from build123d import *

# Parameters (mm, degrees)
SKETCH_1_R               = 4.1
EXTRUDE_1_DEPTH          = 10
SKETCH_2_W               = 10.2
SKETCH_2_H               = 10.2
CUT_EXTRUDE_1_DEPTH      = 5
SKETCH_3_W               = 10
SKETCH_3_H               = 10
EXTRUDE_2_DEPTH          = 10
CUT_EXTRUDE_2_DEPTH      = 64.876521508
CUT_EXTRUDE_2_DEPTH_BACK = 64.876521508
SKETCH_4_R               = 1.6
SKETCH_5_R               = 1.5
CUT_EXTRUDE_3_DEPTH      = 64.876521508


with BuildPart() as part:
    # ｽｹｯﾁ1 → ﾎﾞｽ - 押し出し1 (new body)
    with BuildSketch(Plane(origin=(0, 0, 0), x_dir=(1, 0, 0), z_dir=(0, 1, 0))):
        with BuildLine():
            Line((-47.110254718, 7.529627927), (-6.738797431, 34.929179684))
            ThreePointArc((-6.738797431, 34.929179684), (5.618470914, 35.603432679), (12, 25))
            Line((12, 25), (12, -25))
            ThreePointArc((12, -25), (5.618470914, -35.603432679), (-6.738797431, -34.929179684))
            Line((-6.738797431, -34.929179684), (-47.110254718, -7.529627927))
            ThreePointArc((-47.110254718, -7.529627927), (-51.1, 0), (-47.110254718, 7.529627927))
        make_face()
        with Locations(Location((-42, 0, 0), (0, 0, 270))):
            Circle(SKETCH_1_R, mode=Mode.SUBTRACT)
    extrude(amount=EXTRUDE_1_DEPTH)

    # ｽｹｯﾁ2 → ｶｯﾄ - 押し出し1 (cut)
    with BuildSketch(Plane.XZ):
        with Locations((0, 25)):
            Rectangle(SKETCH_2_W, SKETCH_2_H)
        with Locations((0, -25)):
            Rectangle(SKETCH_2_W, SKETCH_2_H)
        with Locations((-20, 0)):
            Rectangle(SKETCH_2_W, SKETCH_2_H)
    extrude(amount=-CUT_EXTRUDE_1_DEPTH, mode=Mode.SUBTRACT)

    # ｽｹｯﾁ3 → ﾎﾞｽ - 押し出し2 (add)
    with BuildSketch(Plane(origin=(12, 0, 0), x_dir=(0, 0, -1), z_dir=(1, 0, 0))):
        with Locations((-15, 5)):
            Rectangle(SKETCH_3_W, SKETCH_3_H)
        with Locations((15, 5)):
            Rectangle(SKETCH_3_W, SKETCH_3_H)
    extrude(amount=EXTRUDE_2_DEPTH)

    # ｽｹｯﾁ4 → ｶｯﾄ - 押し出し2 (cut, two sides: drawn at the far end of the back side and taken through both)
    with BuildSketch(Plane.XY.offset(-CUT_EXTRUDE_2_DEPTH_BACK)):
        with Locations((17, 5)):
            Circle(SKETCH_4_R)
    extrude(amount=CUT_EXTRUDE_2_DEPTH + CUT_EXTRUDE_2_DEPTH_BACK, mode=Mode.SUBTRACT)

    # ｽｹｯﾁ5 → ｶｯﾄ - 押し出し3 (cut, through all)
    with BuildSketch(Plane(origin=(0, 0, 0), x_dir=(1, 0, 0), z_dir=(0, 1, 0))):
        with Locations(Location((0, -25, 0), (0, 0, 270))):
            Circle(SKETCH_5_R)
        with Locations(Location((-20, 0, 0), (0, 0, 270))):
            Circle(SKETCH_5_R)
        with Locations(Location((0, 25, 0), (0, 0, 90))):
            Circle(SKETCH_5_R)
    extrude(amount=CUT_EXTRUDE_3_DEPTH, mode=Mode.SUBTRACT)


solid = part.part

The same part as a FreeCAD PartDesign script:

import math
import FreeCAD as App
import Part
import Sketcher
Q = App.Units.Quantity

doc = App.newDocument("Part")
params = doc.addObject("Spreadsheet::Sheet", "Params")
for row, (alias, value) in enumerate([
    ("sketch1_radius", "12 mm"),
    ("sketch1_diameter", "8.2 mm"),
    ("sketch1_radius2", "9.1 mm"),
    ("sketch1_height", "50 mm"),
    ("pad1_length", "10 mm"),
    ("sketch2_width", "10.2 mm"),
    ("pocket1_length", "5 mm"),
    ("sketch3_width", "10 mm"),
    ("pad2_length", "10 mm"),
    ("sketch4_diameter", "3.2 mm"),
    ("sketch5_diameter", "3 mm"),
], start=1):
    params.set(f"A{row}", alias)
    params.set(f"B{row}", "=" + value)
    params.setAlias(f"B{row}", alias)

body = doc.addObject("PartDesign::Body", "Body")

# Sketch on XZ plane
sketch1 = body.newObject("Sketcher::SketchObject", "Sketch")
sketch1.AttachmentSupport = (doc.getObject("XZ_Plane"), [""])
sketch1.MapMode = "FlatFace"
sketch1.addGeometry([
    Part.LineSegment(App.Vector(-6.738797, -34.92918, 0), App.Vector(-47.110255, -7.529628, 0)),  # 0
    Part.ArcOfCircle(Part.Circle(App.Vector(-42, 0, 0), App.Vector(0, 0, 1), 9.1), math.radians(124.164198), math.radians(235.835802)),  # 1
    Part.LineSegment(App.Vector(-47.110255, 7.529628, 0), App.Vector(-6.738797, 34.92918, 0)),  # 2
    Part.ArcOfCircle(Part.Circle(App.Vector(0, 25, 0), App.Vector(0, 0, 1), 12), math.radians(0), math.radians(124.164198)),  # 3
    Part.LineSegment(App.Vector(12, 25, 0), App.Vector(12, -25, 0)),  # 4
    Part.ArcOfCircle(Part.Circle(App.Vector(0, -25, 0), App.Vector(0, 0, 1), 12), math.radians(-124.164198), math.radians(0)),  # 5
    Part.Circle(App.Vector(-42, 0, 0), App.Vector(0, 0, 1), 4.1),  # 6
], False)
sketch1.addConstraint([
    Sketcher.Constraint("Tangent", 0, 2, 1, 2),
    Sketcher.Constraint("Tangent", 1, 1, 2, 1),
    Sketcher.Constraint("Tangent", 2, 2, 3, 2),
    Sketcher.Constraint("Tangent", 3, 1, 4, 1),
    Sketcher.Constraint("Tangent", 4, 2, 5, 2),
    Sketcher.Constraint("Tangent", 5, 1, 0, 1),
    Sketcher.Constraint("Vertical", 4),
    Sketcher.Constraint("Coincident", 6, 3, 1, 3),
    Sketcher.Constraint("Equal", 3, 5),
    Sketcher.Constraint("Symmetric", 3, 3, 5, 3, -1, 1),
    Sketcher.Constraint("PointOnObject", 1, 3, -1),
    Sketcher.Constraint("Radius", 3, Q("12 mm")),
    Sketcher.Constraint("Diameter", 6, Q("8.2 mm")),
    Sketcher.Constraint("Radius", 1, Q("9.1 mm")),
    Sketcher.Constraint("DistanceY", 4, 2, 4, 1, Q("50 mm")),
    Sketcher.Constraint("DistanceX", 1, 3, -1, 1, Q("42 mm")),
])
sketch1.setExpression("Constraints[11]", "Params.sketch1_radius")
sketch1.setExpression("Constraints[12]", "Params.sketch1_diameter")
sketch1.setExpression("Constraints[13]", "Params.sketch1_radius2")
sketch1.setExpression("Constraints[14]", "Params.sketch1_height")
pad1 = body.newObject("PartDesign::Pad", "Pad")
pad1.Profile = sketch1
pad1.setExpression("Length", "Params.pad1_length")
pad1.Reversed = True

# Sketch on XZ plane
sketch2 = body.newObject("Sketcher::SketchObject", "Sketch001")
sketch2.AttachmentSupport = (doc.getObject("XZ_Plane"), [""])
sketch2.MapMode = "FlatFace"
sketch2.addGeometry([
    Part.LineSegment(App.Vector(-5.1, 30.1, 0), App.Vector(-5.1, 19.9, 0)),  # 0
    Part.LineSegment(App.Vector(-5.1, 19.9, 0), App.Vector(5.1, 19.9, 0)),  # 1
    Part.LineSegment(App.Vector(5.1, 19.9, 0), App.Vector(5.1, 30.1, 0)),  # 2
    Part.LineSegment(App.Vector(5.1, 30.1, 0), App.Vector(-5.1, 30.1, 0)),  # 3
    Part.LineSegment(App.Vector(-5.1, -19.9, 0), App.Vector(-5.1, -30.1, 0)),  # 4
    Part.LineSegment(App.Vector(-5.1, -30.1, 0), App.Vector(5.1, -30.1, 0)),  # 5
    Part.LineSegment(App.Vector(5.1, -30.1, 0), App.Vector(5.1, -19.9, 0)),  # 6
    Part.LineSegment(App.Vector(5.1, -19.9, 0), App.Vector(-5.1, -19.9, 0)),  # 7
    Part.LineSegment(App.Vector(-25.1, 5.1, 0), App.Vector(-25.1, -5.1, 0)),  # 8
    Part.LineSegment(App.Vector(-25.1, -5.1, 0), App.Vector(-14.9, -5.1, 0)),  # 9
    Part.LineSegment(App.Vector(-14.9, -5.1, 0), App.Vector(-14.9, 5.1, 0)),  # 10
    Part.LineSegment(App.Vector(-14.9, 5.1, 0), App.Vector(-25.1, 5.1, 0)),  # 11
], False)
sketch2.addConstraint([
    Sketcher.Constraint("Coincident", 0, 2, 1, 1),
    Sketcher.Constraint("Coincident", 1, 2, 2, 1),
    Sketcher.Constraint("Coincident", 2, 2, 3, 1),
    Sketcher.Constraint("Coincident", 3, 2, 0, 1),
    Sketcher.Constraint("Coincident", 4, 2, 5, 1),
    Sketcher.Constraint("Coincident", 5, 2, 6, 1),
    Sketcher.Constraint("Coincident", 6, 2, 7, 1),
    Sketcher.Constraint("Coincident", 7, 2, 4, 1),
    Sketcher.Constraint("Coincident", 8, 2, 9, 1),
    Sketcher.Constraint("Coincident", 9, 2, 10, 1),
    Sketcher.Constraint("Coincident", 10, 2, 11, 1),
    Sketcher.Constraint("Coincident", 11, 2, 8, 1),
    Sketcher.Constraint("Vertical", 0),
    Sketcher.Constraint("Horizontal", 1),
    Sketcher.Constraint("Vertical", 2),
    Sketcher.Constraint("Horizontal", 3),
    Sketcher.Constraint("Vertical", 4),
    Sketcher.Constraint("Horizontal", 5),
    Sketcher.Constraint("Vertical", 6),
    Sketcher.Constraint("Horizontal", 7),
    Sketcher.Constraint("Vertical", 8),
    Sketcher.Constraint("Horizontal", 9),
    Sketcher.Constraint("Vertical", 10),
    Sketcher.Constraint("Horizontal", 11),
    Sketcher.Constraint("Symmetric", 2, 2, 4, 2, -1, 1),
    Sketcher.Constraint("Symmetric", 0, 2, 6, 2, -1, 1),
    Sketcher.Constraint("Vertical", 3, 2, 4, 2),
    Sketcher.Constraint("Equal", 7, 9),
    Sketcher.Constraint("Equal", 11, 0),
    Sketcher.Constraint("Equal", 6, 8),
    Sketcher.Constraint("DistanceX", 1, 1, 1, 2, Q("10.2 mm")),
    Sketcher.Constraint("DistanceY", 4, 2, 0, 2, Q("50 mm")),
    Sketcher.Constraint("DistanceX", 8, 2, 7, 2, Q("20 mm")),
    Sketcher.Constraint("DistanceY", 8, 2, 0, 2, Q("25 mm")),
])
sketch2.setExpression("Constraints[30]", "Params.sketch2_width")
pocket1 = body.newObject("PartDesign::Pocket", "Pocket")
pocket1.Profile = sketch2
pocket1.setExpression("Length", "Params.pocket1_length")

# Sketch on YZ plane
sketch3 = body.newObject("Sketcher::SketchObject", "Sketch002")
sketch3.AttachmentSupport = (doc.getObject("YZ_Plane"), [""])
sketch3.MapMode = "FlatFace"
sketch3.AttachmentOffset = App.Placement(App.Vector(0, 0, 12), App.Rotation())
sketch3.addGeometry([
    Part.LineSegment(App.Vector(10, 20, 0), App.Vector(0, 20, 0)),  # 0
    Part.LineSegment(App.Vector(0, 20, 0), App.Vector(0, 10, 0)),  # 1
    Part.LineSegment(App.Vector(0, 10, 0), App.Vector(10, 10, 0)),  # 2
    Part.LineSegment(App.Vector(10, 10, 0), App.Vector(10, 20, 0)),  # 3
    Part.LineSegment(App.Vector(10, -10, 0), App.Vector(0, -10, 0)),  # 4
    Part.LineSegment(App.Vector(0, -10, 0), App.Vector(0, -20, 0)),  # 5
    Part.LineSegment(App.Vector(0, -20, 0), App.Vector(10, -20, 0)),  # 6
    Part.LineSegment(App.Vector(10, -20, 0), App.Vector(10, -10, 0)),  # 7
], False)
sketch3.addConstraint([
    Sketcher.Constraint("Coincident", 0, 2, 1, 1),
    Sketcher.Constraint("Coincident", 1, 2, 2, 1),
    Sketcher.Constraint("Coincident", 2, 2, 3, 1),
    Sketcher.Constraint("Coincident", 3, 2, 0, 1),
    Sketcher.Constraint("Coincident", 4, 2, 5, 1),
    Sketcher.Constraint("Coincident", 5, 2, 6, 1),
    Sketcher.Constraint("Coincident", 6, 2, 7, 1),
    Sketcher.Constraint("Coincident", 7, 2, 4, 1),
    Sketcher.Constraint("Horizontal", 0),
    Sketcher.Constraint("Vertical", 1),
    Sketcher.Constraint("Horizontal", 2),
    Sketcher.Constraint("Vertical", 3),
    Sketcher.Constraint("Horizontal", 4),
    Sketcher.Constraint("Vertical", 5),
    Sketcher.Constraint("Horizontal", 6),
    Sketcher.Constraint("Vertical", 7),
    Sketcher.Constraint("Symmetric", 1, 2, 4, 2, -1, 1),
    Sketcher.Constraint("Symmetric", 0, 2, 5, 2, -1),
    Sketcher.Constraint("Vertical", 3, 2, 6, 2),
    Sketcher.Constraint("Equal", 6, 1),
    Sketcher.Constraint("DistanceX", 0, 2, 0, 1, Q("10 mm")),
    Sketcher.Constraint("DistanceY", -1, 1, 0, 2, Q("20 mm")),
])
sketch3.setExpression("Constraints[20]", "Params.sketch3_width")
pad2 = body.newObject("PartDesign::Pad", "Pad001")
pad2.Profile = sketch3
pad2.setExpression("Length", "Params.pad2_length")

# Sketch on XY plane
sketch4 = body.newObject("Sketcher::SketchObject", "Sketch003")
sketch4.AttachmentSupport = (doc.getObject("XY_Plane"), [""])
sketch4.MapMode = "FlatFace"
sketch4.addGeometry(Part.Circle(App.Vector(17, 5, 0), App.Vector(0, 0, 1), 1.6), False)
sketch4.addConstraint([
    Sketcher.Constraint("Diameter", 0, Q("3.2 mm")),
    Sketcher.Constraint("DistanceX", -1, 1, 0, 3, Q("17 mm")),
    Sketcher.Constraint("DistanceY", -1, 1, 0, 3, Q("5 mm")),
])
sketch4.setExpression("Constraints[0]", "Params.sketch4_diameter")
pocket2 = body.newObject("PartDesign::Pocket", "Pocket001")
pocket2.Profile = sketch4
pocket2.Type = "ThroughAll"
pocket2.Midplane = True

# Sketch on XZ plane
sketch5 = body.newObject("Sketcher::SketchObject", "Sketch004")
sketch5.AttachmentSupport = (doc.getObject("XZ_Plane"), [""])
sketch5.MapMode = "FlatFace"
sketch5.addGeometry([
    Part.Circle(App.Vector(0, 25, 0), App.Vector(0, 0, 1), 1.5),
    Part.Circle(App.Vector(-20, 0, 0), App.Vector(0, 0, 1), 1.5),
    Part.Circle(App.Vector(0, -25, 0), App.Vector(0, 0, 1), 1.5),
], False)
sketch5.addConstraint([
    Sketcher.Constraint("Equal", 0, 1),
    Sketcher.Constraint("Equal", 1, 2),
    Sketcher.Constraint("Symmetric", 0, 3, 2, 3, -1, 1),
    Sketcher.Constraint("PointOnObject", 0, 3, -2),
    Sketcher.Constraint("PointOnObject", 1, 3, -1),
    Sketcher.Constraint("Diameter", 0, Q("3 mm")),
    Sketcher.Constraint("DistanceY", -1, 1, 0, 3, Q("25 mm")),
    Sketcher.Constraint("DistanceX", 1, 3, -1, 1, Q("20 mm")),
])
sketch5.setExpression("Constraints[5]", "Params.sketch5_diameter")
pocket3 = body.newObject("PartDesign::Pocket", "Pocket002")
pocket3.Profile = sketch5
pocket3.Type = "ThroughAll"

doc.recompute()
